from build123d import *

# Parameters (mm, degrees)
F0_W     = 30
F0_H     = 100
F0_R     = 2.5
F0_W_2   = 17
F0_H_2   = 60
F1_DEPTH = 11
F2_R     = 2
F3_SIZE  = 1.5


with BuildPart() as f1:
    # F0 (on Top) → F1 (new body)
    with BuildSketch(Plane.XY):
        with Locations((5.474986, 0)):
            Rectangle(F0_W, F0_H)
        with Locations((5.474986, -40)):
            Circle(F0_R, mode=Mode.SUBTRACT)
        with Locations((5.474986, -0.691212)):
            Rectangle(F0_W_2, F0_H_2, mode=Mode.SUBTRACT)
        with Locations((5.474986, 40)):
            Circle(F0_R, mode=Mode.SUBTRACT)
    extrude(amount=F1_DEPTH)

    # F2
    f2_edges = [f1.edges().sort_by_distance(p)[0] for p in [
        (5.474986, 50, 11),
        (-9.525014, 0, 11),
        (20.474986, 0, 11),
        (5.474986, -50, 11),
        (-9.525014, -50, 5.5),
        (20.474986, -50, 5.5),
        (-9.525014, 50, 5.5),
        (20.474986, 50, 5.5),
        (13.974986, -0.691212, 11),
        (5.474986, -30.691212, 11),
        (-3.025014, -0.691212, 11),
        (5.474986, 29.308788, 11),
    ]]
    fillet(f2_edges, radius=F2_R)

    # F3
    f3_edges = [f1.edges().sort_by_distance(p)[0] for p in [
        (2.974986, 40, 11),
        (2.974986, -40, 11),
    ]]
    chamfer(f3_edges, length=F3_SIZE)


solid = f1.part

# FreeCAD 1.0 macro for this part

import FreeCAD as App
import Part
import Sketcher

V = App.Vector


def edges_at(feature, points):
    """Names of the edges that pass closest to the given points."""
    edges = feature.Shape.Edges
    near = lambda p: min(range(len(edges)), key=lambda i: edges[i].distToShape(Part.Vertex(*p))[0])
    return sorted({f"Edge{near(p) + 1}" for p in points})

doc = App.newDocument("Part")
body = doc.addObject("PartDesign::Body", "Body")

# Sketch on XY plane
sketch1 = body.newObject("Sketcher::SketchObject", "Sketch")
sketch1.AttachmentSupport = (doc.getObject("XY_Plane"), [""])
sketch1.MapMode = "FlatFace"
sketch1.addGeometry([
    Part.LineSegment(V(-9.5, 50, 0), V(-9.5, -50, 0)),  # 0
    Part.LineSegment(V(-9.5, -50, 0), V(20.5, -50, 0)),  # 1
    Part.LineSegment(V(20.5, -50, 0), V(20.5, 50, 0)),  # 2
    Part.LineSegment(V(20.5, 50, 0), V(-9.5, 50, 0)),  # 3
    Part.Circle(V(5.5, -40, 0), V(0, 0, 1), 2.5),  # 4
    Part.LineSegment(V(14, -30.7, 0), V(-3, -30.7, 0)),  # 5
    Part.LineSegment(V(-3, -30.7, 0), V(-3, 29.3, 0)),  # 6
    Part.LineSegment(V(-3, 29.3, 0), V(14, 29.3, 0)),  # 7
    Part.LineSegment(V(14, 29.3, 0), V(14, -30.7, 0)),  # 8
    Part.Circle(V(5.5, 40, 0), V(0, 0, 1), 2.5),  # 9
], False)
sketch1.addConstraint([
    Sketcher.Constraint("Coincident", 0, 2, 1, 1),
    Sketcher.Constraint("Coincident", 1, 2, 2, 1),
    Sketcher.Constraint("Coincident", 2, 2, 3, 1),
    Sketcher.Constraint("Coincident", 3, 2, 0, 1),
    Sketcher.Constraint("Coincident", 5, 2, 6, 1),
    Sketcher.Constraint("Coincident", 6, 2, 7, 1),
    Sketcher.Constraint("Coincident", 7, 2, 8, 1),
    Sketcher.Constraint("Coincident", 8, 2, 5, 1),
    Sketcher.Constraint("Vertical", 0),
    Sketcher.Constraint("Horizontal", 1),
    Sketcher.Constraint("Vertical", 2),
    Sketcher.Constraint("Horizontal", 3),
    Sketcher.Constraint("Horizontal", 5),
    Sketcher.Constraint("Vertical", 6),
    Sketcher.Constraint("Horizontal", 7),
    Sketcher.Constraint("Vertical", 8),
    Sketcher.Constraint("Equal", 4, 9),
    Sketcher.Constraint("Symmetric", 4, 3, 9, 3, -1),
    Sketcher.Constraint("Diameter", 4, 5.0),
    Sketcher.Constraint("DistanceX", 1, 1, 1, 2, 30.0),
    Sketcher.Constraint("DistanceX", 5, 2, 5, 1, 17.0),
    Sketcher.Constraint("DistanceY", 0, 2, 0, 1, 100.0),
    Sketcher.Constraint("DistanceY", 6, 1, 6, 2, 60.0),
    Sketcher.Constraint("DistanceY", 4, 3, -1, 1, 40.0),
    Sketcher.Constraint("DistanceY", 0, 2, -1, 1, 50.0),
    Sketcher.Constraint("DistanceX", 0, 2, 4, 3, 15.0),
    Sketcher.Constraint("DistanceX", 5, 2, 4, 3, 8.5),
    Sketcher.Constraint("DistanceY", 5, 2, -1, 1, 30.691212),
    Sketcher.Constraint("DistanceX", -1, 1, 4, 3, 5.474986),
])
pad1 = body.newObject("PartDesign::Pad", "Pad")
pad1.Profile = sketch1
pad1.Length = 11
doc.recompute()

fillet = body.newObject("PartDesign::Fillet", "Fillet")
fillet.Base = (pad1, edges_at(pad1, [
    (5.475, 50, 11),
    (-9.525, 0, 11),
    (20.475, 0, 11),
    (5.475, -50, 11),
    (-9.525, -50, 5.5),
    (20.475, -50, 5.5),
    (-9.525, 50, 5.5),
    (20.475, 50, 5.5),
    (13.975, -0.691, 11),
    (5.475, -30.691, 11),
    (-3.025, -0.691, 11),
    (5.475, 29.309, 11),
]))
fillet.Radius = 2
doc.recompute()

chamfer = body.newObject("PartDesign::Chamfer", "Chamfer")
chamfer.Base = (fillet, edges_at(fillet, [(2.975, 40, 11), (2.975, -40, 11)]))
chamfer.Size = 1.5

doc.recompute()
